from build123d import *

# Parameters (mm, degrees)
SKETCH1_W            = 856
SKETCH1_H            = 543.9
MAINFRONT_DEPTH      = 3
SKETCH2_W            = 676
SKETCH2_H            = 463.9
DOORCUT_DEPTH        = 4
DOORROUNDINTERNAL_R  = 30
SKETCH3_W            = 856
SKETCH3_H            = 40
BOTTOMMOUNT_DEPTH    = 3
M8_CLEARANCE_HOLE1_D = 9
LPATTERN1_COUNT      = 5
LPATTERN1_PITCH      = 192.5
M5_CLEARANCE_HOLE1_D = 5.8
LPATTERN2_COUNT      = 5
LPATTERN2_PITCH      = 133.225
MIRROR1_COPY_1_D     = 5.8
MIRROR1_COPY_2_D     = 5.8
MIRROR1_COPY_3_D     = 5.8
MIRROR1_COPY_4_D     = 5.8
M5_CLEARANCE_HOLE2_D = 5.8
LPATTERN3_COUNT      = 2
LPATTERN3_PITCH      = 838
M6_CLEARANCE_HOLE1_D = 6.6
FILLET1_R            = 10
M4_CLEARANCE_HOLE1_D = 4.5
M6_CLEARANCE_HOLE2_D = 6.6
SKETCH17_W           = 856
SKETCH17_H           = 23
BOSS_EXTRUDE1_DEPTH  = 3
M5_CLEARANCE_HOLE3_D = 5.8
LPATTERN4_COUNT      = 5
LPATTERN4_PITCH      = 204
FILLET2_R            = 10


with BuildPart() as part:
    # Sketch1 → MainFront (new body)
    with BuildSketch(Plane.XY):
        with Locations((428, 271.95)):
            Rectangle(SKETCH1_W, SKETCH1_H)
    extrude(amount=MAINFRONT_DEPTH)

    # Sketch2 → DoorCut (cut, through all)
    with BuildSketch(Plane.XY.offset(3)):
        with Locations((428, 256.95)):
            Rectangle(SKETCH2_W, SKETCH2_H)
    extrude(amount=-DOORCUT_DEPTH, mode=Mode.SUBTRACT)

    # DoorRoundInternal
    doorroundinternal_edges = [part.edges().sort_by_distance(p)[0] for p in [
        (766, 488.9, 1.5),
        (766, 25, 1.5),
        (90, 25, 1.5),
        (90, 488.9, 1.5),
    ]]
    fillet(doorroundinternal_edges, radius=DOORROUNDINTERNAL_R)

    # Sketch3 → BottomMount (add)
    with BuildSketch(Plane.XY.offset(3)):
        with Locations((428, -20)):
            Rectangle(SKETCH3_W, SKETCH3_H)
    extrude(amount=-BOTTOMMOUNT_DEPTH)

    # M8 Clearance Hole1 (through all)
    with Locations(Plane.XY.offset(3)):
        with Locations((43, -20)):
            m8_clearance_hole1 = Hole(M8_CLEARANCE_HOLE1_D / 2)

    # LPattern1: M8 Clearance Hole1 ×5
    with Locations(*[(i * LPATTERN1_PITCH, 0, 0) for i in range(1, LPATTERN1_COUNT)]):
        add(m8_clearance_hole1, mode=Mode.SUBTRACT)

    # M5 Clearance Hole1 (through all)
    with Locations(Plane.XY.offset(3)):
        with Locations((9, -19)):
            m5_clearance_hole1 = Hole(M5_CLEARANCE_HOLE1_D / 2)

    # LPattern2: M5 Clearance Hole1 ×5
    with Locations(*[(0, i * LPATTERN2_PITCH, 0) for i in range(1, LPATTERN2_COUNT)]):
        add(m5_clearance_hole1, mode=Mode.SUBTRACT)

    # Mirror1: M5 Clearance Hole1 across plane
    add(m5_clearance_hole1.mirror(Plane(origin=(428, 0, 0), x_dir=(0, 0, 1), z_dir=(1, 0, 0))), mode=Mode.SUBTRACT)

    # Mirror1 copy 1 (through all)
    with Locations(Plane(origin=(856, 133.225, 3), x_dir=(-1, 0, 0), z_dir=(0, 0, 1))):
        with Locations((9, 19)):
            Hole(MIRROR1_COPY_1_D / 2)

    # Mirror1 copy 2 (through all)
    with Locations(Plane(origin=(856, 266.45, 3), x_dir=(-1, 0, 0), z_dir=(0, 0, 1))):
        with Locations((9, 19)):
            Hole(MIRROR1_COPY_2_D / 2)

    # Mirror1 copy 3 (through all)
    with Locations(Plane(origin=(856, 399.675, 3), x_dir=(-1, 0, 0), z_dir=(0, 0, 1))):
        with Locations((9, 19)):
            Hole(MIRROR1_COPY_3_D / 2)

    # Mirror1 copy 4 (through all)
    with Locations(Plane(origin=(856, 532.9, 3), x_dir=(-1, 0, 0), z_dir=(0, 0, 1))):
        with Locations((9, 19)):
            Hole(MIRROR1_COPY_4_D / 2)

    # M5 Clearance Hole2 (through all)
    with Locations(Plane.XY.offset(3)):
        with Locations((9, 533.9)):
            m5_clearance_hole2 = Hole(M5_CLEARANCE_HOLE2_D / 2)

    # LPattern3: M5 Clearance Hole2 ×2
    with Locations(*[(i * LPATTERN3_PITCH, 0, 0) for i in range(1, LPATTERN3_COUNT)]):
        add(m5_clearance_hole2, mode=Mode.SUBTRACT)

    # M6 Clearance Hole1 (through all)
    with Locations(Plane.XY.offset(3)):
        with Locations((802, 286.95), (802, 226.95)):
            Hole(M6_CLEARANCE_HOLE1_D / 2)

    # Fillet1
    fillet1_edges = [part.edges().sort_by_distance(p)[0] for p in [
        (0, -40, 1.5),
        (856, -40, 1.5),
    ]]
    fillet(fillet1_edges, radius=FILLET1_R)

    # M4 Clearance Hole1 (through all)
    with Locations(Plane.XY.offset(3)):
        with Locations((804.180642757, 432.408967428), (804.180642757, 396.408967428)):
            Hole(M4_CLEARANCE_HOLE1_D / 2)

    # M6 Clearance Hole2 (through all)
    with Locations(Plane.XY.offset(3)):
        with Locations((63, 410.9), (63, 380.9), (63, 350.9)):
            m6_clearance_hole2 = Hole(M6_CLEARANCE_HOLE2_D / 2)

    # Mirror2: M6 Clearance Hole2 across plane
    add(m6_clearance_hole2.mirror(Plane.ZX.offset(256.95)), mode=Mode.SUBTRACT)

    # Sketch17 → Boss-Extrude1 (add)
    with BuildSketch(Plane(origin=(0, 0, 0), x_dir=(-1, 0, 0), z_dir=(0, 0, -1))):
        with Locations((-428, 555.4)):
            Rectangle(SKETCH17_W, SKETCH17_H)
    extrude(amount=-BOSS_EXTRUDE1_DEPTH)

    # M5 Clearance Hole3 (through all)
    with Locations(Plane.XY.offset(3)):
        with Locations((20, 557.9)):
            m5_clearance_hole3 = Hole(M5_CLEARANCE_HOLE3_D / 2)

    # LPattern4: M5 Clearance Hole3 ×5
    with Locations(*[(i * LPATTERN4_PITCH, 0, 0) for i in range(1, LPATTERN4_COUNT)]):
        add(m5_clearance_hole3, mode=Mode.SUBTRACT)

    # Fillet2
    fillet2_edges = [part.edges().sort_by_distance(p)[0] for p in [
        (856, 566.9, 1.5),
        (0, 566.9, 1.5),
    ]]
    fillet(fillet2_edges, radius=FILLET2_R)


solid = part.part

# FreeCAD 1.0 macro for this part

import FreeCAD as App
import Part
import Sketcher


def edges_at(feature, points):
    """Names of the edges that pass closest to the given points."""
    edges = feature.Shape.Edges
    near = lambda p: min(range(len(edges)), key=lambda i: edges[i].distToShape(Part.Vertex(*p))[0])
    return sorted({f"Edge{near(p) + 1}" for p in points})

doc = App.newDocument("Part")
body = doc.addObject("PartDesign::Body", "Body")

sketch1 = body.newObject("Sketcher::SketchObject", "Sketch")
sketch1.AttachmentSupport = (doc.getObject("XY_Plane"), [""])
sketch1.MapMode = "FlatFace"
sketch1.addGeometry([
    Part.LineSegment(App.Vector(0, 544, 0), App.Vector(0, 0, 0)),
    Part.LineSegment(App.Vector(0, 0, 0), App.Vector(856, 0, 0)),
    Part.LineSegment(App.Vector(856, 0, 0), App.Vector(856, 544, 0)),
    Part.LineSegment(App.Vector(856, 544, 0), App.Vector(0, 544, 0)),
], False)
sketch1.addConstraint([
    Sketcher.Constraint("Coincident", 0, 2, 1, 1),
    Sketcher.Constraint("Coincident", 1, 2, 2, 1),
    Sketcher.Constraint("Coincident", 2, 2, 3, 1),
    Sketcher.Constraint("Coincident", 3, 2, 0, 1),
    Sketcher.Constraint("Vertical", 0),
    Sketcher.Constraint("Horizontal", 1),
    Sketcher.Constraint("Vertical", 2),
    Sketcher.Constraint("Horizontal", 3),
    Sketcher.Constraint("Coincident", 0, 2, -1, 1),
    Sketcher.Constraint("DistanceX", 1, 1, 1, 2, 856.0),
    Sketcher.Constraint("DistanceY", 0, 2, 0, 1, 543.9),
])
pad1 = body.newObject("PartDesign::Pad", "Pad")
pad1.Profile = sketch1
pad1.Length = 3

sketch2 = body.newObject("Sketcher::SketchObject", "Sketch001")
sketch2.AttachmentSupport = (doc.getObject("XY_Plane"), [""])
sketch2.MapMode = "FlatFace"
sketch2.AttachmentOffset = App.Placement(App.Vector(0, 0, 3), App.Rotation())
sketch2.addGeometry([
    Part.LineSegment(App.Vector(90, 489, 0), App.Vector(90, 25, 0)),
    Part.LineSegment(App.Vector(90, 25, 0), App.Vector(766, 25, 0)),
    Part.LineSegment(App.Vector(766, 25, 0), App.Vector(766, 489, 0)),
    Part.LineSegment(App.Vector(766, 489, 0), App.Vector(90, 489, 0)),
], False)
sketch2.addConstraint([
    Sketcher.Constraint("Coincident", 0, 2, 1, 1),
    Sketcher.Constraint("Coincident", 1, 2, 2, 1),
    Sketcher.Constraint("Coincident", 2, 2, 3, 1),
    Sketcher.Constraint("Coincident", 3, 2, 0, 1),
    Sketcher.Constraint("Vertical", 0),
    Sketcher.Constraint("Horizontal", 1),
    Sketcher.Constraint("Vertical", 2),
    Sketcher.Constraint("Horizontal", 3),
    Sketcher.Constraint("DistanceX", 1, 1, 1, 2, 676.0),
    Sketcher.Constraint("DistanceY", 0, 2, 0, 1, 463.9),
    Sketcher.Constraint("DistanceX", -1, 1, 0, 2, 90.0),
    Sketcher.Constraint("DistanceY", -1, 1, 0, 2, 25.0),
])
pocket1 = body.newObject("PartDesign::Pocket", "Pocket")
pocket1.Profile = sketch2
pocket1.Type = "ThroughAll"
doc.recompute()

fillet = body.newObject("PartDesign::Fillet", "Fillet")
fillet.Base = (pocket1, edges_at(pocket1, [
    (766, 488.9, 1.5),
    (766, 25, 1.5),
    (90, 25, 1.5),
    (90, 488.9, 1.5),
]))
fillet.Radius = 30

sketch3 = body.newObject("Sketcher::SketchObject", "Sketch002")
sketch3.AttachmentSupport = (doc.getObject("XY_Plane"), [""])
sketch3.MapMode = "FlatFace"
sketch3.AttachmentOffset = App.Placement(App.Vector(0, 0, 3), App.Rotation())
sketch3.addGeometry([
    Part.LineSegment(App.Vector(0, 0, 0), App.Vector(0, -40, 0)),
    Part.LineSegment(App.Vector(0, -40, 0), App.Vector(856, -40, 0)),
    Part.LineSegment(App.Vector(856, -40, 0), App.Vector(856, 0, 0)),
    Part.LineSegment(App.Vector(856, 0, 0), App.Vector(0, 0, 0)),
], False)
sketch3.addConstraint([
    Sketcher.Constraint("Coincident", 0, 2, 1, 1),
    Sketcher.Constraint("Coincident", 1, 2, 2, 1),
    Sketcher.Constraint("Coincident", 2, 2, 3, 1),
    Sketcher.Constraint("Coincident", 3, 2, 0, 1),
    Sketcher.Constraint("Vertical", 0),
    Sketcher.Constraint("Horizontal", 1),
    Sketcher.Constraint("Vertical", 2),
    Sketcher.Constraint("Horizontal", 3),
    Sketcher.Constraint("Coincident", 3, 2, -1, 1),
    Sketcher.Constraint("DistanceX", 1, 1, 1, 2, 856.0),
    Sketcher.Constraint("DistanceY", 0, 2, 0, 1, 40.0),
])
pad2 = body.newObject("PartDesign::Pad", "Pad001")
pad2.Profile = sketch3
pad2.Length = 3
pad2.Reversed = True

sketch4 = body.newObject("Sketcher::SketchObject", "Sketch003")
sketch4.AttachmentSupport = (doc.getObject("XY_Plane"), [""])
sketch4.MapMode = "FlatFace"
sketch4.AttachmentOffset = App.Placement(App.Vector(0, 0, 3), App.Rotation())
sketch4.addGeometry(Part.Circle(App.Vector(43, -20, 0), App.Vector(0, 0, 1), 4.5), False)
sketch4.addConstraint([
    Sketcher.Constraint("Diameter", 0, 9.0),
    Sketcher.Constraint("DistanceX", -1, 1, 0, 3, 43.0),
    Sketcher.Constraint("DistanceY", 0, 3, -1, 1, 20.0),
])
doc.recompute()
hole = body.newObject("PartDesign::Hole", "Hole")
hole.Profile = sketch4
hole.ThreadType = "None"
hole.Diameter = 9
hole.DepthType = "ThroughAll"
doc.recompute()

linearpattern = body.newObject("PartDesign::LinearPattern", "LinearPattern")
linearpattern.Originals = [hole]
linearpattern.Direction = (doc.getObject("X_Axis"), [""])
linearpattern.Mode = "offset"
linearpattern.Offset = 192.5
linearpattern.Occurrences = 5
body.Tip = linearpattern

sketch5 = body.newObject("Sketcher::SketchObject", "Sketch004")
sketch5.AttachmentSupport = (doc.getObject("XY_Plane"), [""])
sketch5.MapMode = "FlatFace"
sketch5.AttachmentOffset = App.Placement(App.Vector(0, 0, 3), App.Rotation())
sketch5.addGeometry(Part.Circle(App.Vector(9, -19, 0), App.Vector(0, 0, 1), 2.9), False)
sketch5.addConstraint([
    Sketcher.Constraint("Diameter", 0, 5.8),
    Sketcher.Constraint("DistanceX", -1, 1, 0, 3, 9.0),
    Sketcher.Constraint("DistanceY", 0, 3, -1, 1, 19.0),
])
doc.recompute()
hole2 = body.newObject("PartDesign::Hole", "Hole001")
hole2.Profile = sketch5
hole2.ThreadType = "None"
hole2.Diameter = 5.8
hole2.DepthType = "ThroughAll"
doc.recompute()

linearpattern2 = body.newObject("PartDesign::LinearPattern", "LinearPattern001")
linearpattern2.Originals = [hole2]
linearpattern2.Direction = (doc.getObject("Y_Axis"), [""])
linearpattern2.Mode = "offset"
linearpattern2.Offset = 133.225
linearpattern2.Occurrences = 5
body.Tip = linearpattern2
doc.recompute()

datumplane = body.newObject("PartDesign::Plane", "DatumPlane")
datumplane.AttachmentSupport = (doc.getObject("YZ_Plane"), [""])
datumplane.MapMode = "FlatFace"
datumplane.AttachmentOffset = App.Placement(App.Vector(0, 0, 428), App.Rotation())
mirrored = body.newObject("PartDesign::Mirrored", "Mirrored")
mirrored.Originals = [hole2]
mirrored.MirrorPlane = (datumplane, [""])
body.Tip = mirrored

sketch6 = body.newObject("Sketcher::SketchObject", "Sketch005")
sketch6.AttachmentSupport = (doc.getObject("XY_Plane"), [""])
sketch6.MapMode = "FlatFace"
sketch6.AttachmentOffset = App.Placement(App.Vector(0, 0, 3), App.Rotation())
sketch6.addGeometry(Part.Circle(App.Vector(847, 114.2, 0), App.Vector(0, 0, 1), 2.9), False)
sketch6.addConstraint([
    Sketcher.Constraint("Diameter", 0, 5.8),
    Sketcher.Constraint("DistanceX", -1, 1, 0, 3, 847.0),
    Sketcher.Constraint("DistanceY", -1, 1, 0, 3, 114.225),
])
doc.recompute()
hole3 = body.newObject("PartDesign::Hole", "Hole002")
hole3.Profile = sketch6
hole3.ThreadType = "None"
hole3.Diameter = 5.8
hole3.DepthType = "ThroughAll"

sketch7 = body.newObject("Sketcher::SketchObject", "Sketch006")
sketch7.AttachmentSupport = (doc.getObject("XY_Plane"), [""])
sketch7.MapMode = "FlatFace"
sketch7.AttachmentOffset = App.Placement(App.Vector(0, 0, 3), App.Rotation())
sketch7.addGeometry(Part.Circle(App.Vector(847, 247.4, 0), App.Vector(0, 0, 1), 2.9), False)
sketch7.addConstraint([
    Sketcher.Constraint("Diameter", 0, 5.8),
    Sketcher.Constraint("DistanceX", -1, 1, 0, 3, 847.0),
    Sketcher.Constraint("DistanceY", -1, 1, 0, 3, 247.45),
])
doc.recompute()
hole4 = body.newObject("PartDesign::Hole", "Hole003")
hole4.Profile = sketch7
hole4.ThreadType = "None"
hole4.Diameter = 5.8
hole4.DepthType = "ThroughAll"

sketch8 = body.newObject("Sketcher::SketchObject", "Sketch007")
sketch8.AttachmentSupport = (doc.getObject("XY_Plane"), [""])
sketch8.MapMode = "FlatFace"
sketch8.AttachmentOffset = App.Placement(App.Vector(0, 0, 3), App.Rotation())
sketch8.addGeometry(Part.Circle(App.Vector(847, 380.7, 0), App.Vector(0, 0, 1), 2.9), False)
sketch8.addConstraint([
    Sketcher.Constraint("Diameter", 0, 5.8),
    Sketcher.Constraint("DistanceX", -1, 1, 0, 3, 847.0),
    Sketcher.Constraint("DistanceY", -1, 1, 0, 3, 380.675),
])
doc.recompute()
hole5 = body.newObject("PartDesign::Hole", "Hole004")
hole5.Profile = sketch8
hole5.ThreadType = "None"
hole5.Diameter = 5.8
hole5.DepthType = "ThroughAll"

sketch9 = body.newObject("Sketcher::SketchObject", "Sketch008")
sketch9.AttachmentSupport = (doc.getObject("XY_Plane"), [""])
sketch9.MapMode = "FlatFace"
sketch9.AttachmentOffset = App.Placement(App.Vector(0, 0, 3), App.Rotation())
sketch9.addGeometry(Part.Circle(App.Vector(847, 513.9, 0), App.Vector(0, 0, 1), 2.9), False)
sketch9.addConstraint([
    Sketcher.Constraint("Diameter", 0, 5.8),
    Sketcher.Constraint("DistanceX", -1, 1, 0, 3, 847.0),
    Sketcher.Constraint("DistanceY", -1, 1, 0, 3, 513.9),
])
doc.recompute()
hole6 = body.newObject("PartDesign::Hole", "Hole005")
hole6.Profile = sketch9
hole6.ThreadType = "None"
hole6.Diameter = 5.8
hole6.DepthType = "ThroughAll"

sketch10 = body.newObject("Sketcher::SketchObject", "Sketch009")
sketch10.AttachmentSupport = (doc.getObject("XY_Plane"), [""])
sketch10.MapMode = "FlatFace"
sketch10.AttachmentOffset = App.Placement(App.Vector(0, 0, 3), App.Rotation())
sketch10.addGeometry(Part.Circle(App.Vector(9, 533.9, 0), App.Vector(0, 0, 1), 2.9), False)
sketch10.addConstraint([
    Sketcher.Constraint("Diameter", 0, 5.8),
    Sketcher.Constraint("DistanceX", -1, 1, 0, 3, 9.0),
    Sketcher.Constraint("DistanceY", -1, 1, 0, 3, 533.9),
])
doc.recompute()
hole7 = body.newObject("PartDesign::Hole", "Hole006")
hole7.Profile = sketch10
hole7.ThreadType = "None"
hole7.Diameter = 5.8
hole7.DepthType = "ThroughAll"
doc.recompute()

linearpattern3 = body.newObject("PartDesign::LinearPattern", "LinearPattern002")
linearpattern3.Originals = [hole7]
linearpattern3.Direction = (doc.getObject("X_Axis"), [""])
linearpattern3.Mode = "offset"
linearpattern3.Offset = 838
linearpattern3.Occurrences = 2
body.Tip = linearpattern3

sketch11 = body.newObject("Sketcher::SketchObject", "Sketch010")
sketch11.AttachmentSupport = (doc.getObject("XY_Plane"), [""])
sketch11.MapMode = "FlatFace"
sketch11.AttachmentOffset = App.Placement(App.Vector(0, 0, 3), App.Rotation())
sketch11.addGeometry([
    Part.Circle(App.Vector(802, 286.9, 0), App.Vector(0, 0, 1), 3.3),
    Part.Circle(App.Vector(802, 226.9, 0), App.Vector(0, 0, 1), 3.3),
], False)
sketch11.addConstraint([
    Sketcher.Constraint("Equal", 0, 1),
    Sketcher.Constraint("Vertical", 0, 3, 1, 3),
    Sketcher.Constraint("Diameter", 0, 6.6),
    Sketcher.Constraint("DistanceX", -1, 1, 0, 3, 802.0),
    Sketcher.Constraint("DistanceY", 1, 3, 0, 3, 60.0),
    Sketcher.Constraint("DistanceY", -1, 1, 0, 3, 286.95),
])
doc.recompute()
hole8 = body.newObject("PartDesign::Hole", "Hole007")
hole8.Profile = sketch11
hole8.ThreadType = "None"
hole8.Diameter = 6.6
hole8.DepthType = "ThroughAll"
doc.recompute()

fillet2 = body.newObject("PartDesign::Fillet", "Fillet001")
fillet2.Base = (hole8, edges_at(hole8, [(0, -40, 1.5), (856, -40, 1.5)]))
fillet2.Radius = 10

sketch12 = body.newObject("Sketcher::SketchObject", "Sketch011")
sketch12.AttachmentSupport = (doc.getObject("XY_Plane"), [""])
sketch12.MapMode = "FlatFace"
sketch12.AttachmentOffset = App.Placement(App.Vector(0, 0, 3), App.Rotation())
sketch12.addGeometry([
    Part.Circle(App.Vector(804.2, 432.4, 0), App.Vector(0, 0, 1), 2.2),
    Part.Circle(App.Vector(804.2, 396.4, 0), App.Vector(0, 0, 1), 2.2),
], False)
sketch12.addConstraint([
    Sketcher.Constraint("Equal", 0, 1),
    Sketcher.Constraint("Vertical", 0, 3, 1, 3),
    Sketcher.Constraint("Diameter", 0, 4.5),
    Sketcher.Constraint("DistanceY", 1, 3, 0, 3, 36.0),
    Sketcher.Constraint("DistanceX", -1, 1, 0, 3, 804.180643),
    Sketcher.Constraint("DistanceY", -1, 1, 0, 3, 432.408967),
])
doc.recompute()
hole9 = body.newObject("PartDesign::Hole", "Hole008")
hole9.Profile = sketch12
hole9.ThreadType = "None"
hole9.Diameter = 4.5
hole9.DepthType = "ThroughAll"

sketch13 = body.newObject("Sketcher::SketchObject", "Sketch012")
sketch13.AttachmentSupport = (doc.getObject("XY_Plane"), [""])
sketch13.MapMode = "FlatFace"
sketch13.AttachmentOffset = App.Placement(App.Vector(0, 0, 3), App.Rotation())
sketch13.addGeometry([
    Part.Circle(App.Vector(63, 410.9, 0), App.Vector(0, 0, 1), 3.3),
    Part.Circle(App.Vector(63, 380.9, 0), App.Vector(0, 0, 1), 3.3),
    Part.Circle(App.Vector(63, 350.9, 0), App.Vector(0, 0, 1), 3.3),
], False)
sketch13.addConstraint([
    Sketcher.Constraint("Equal", 0, 1),
    Sketcher.Constraint("Equal", 1, 2),
    Sketcher.Constraint("Vertical", 0, 3, 1, 3),
    Sketcher.Constraint("Vertical", 1, 3, 2, 3),
    Sketcher.Constraint("Diameter", 0, 6.6),
    Sketcher.Constraint("DistanceX", -1, 1, 0, 3, 63.0),
    Sketcher.Constraint("DistanceY", 1, 3, 0, 3, 30.0),
    Sketcher.Constraint("DistanceY", 2, 3, 1, 3, 30.0),
    Sketcher.Constraint("DistanceY", -1, 1, 0, 3, 410.9),
])
doc.recompute()
hole10 = body.newObject("PartDesign::Hole", "Hole009")
hole10.Profile = sketch13
hole10.ThreadType = "None"
hole10.Diameter = 6.6
hole10.DepthType = "ThroughAll"
doc.recompute()

datumplane2 = body.newObject("PartDesign::Plane", "DatumPlane001")
datumplane2.AttachmentSupport = (doc.getObject("XZ_Plane"), [""])
datumplane2.MapMode = "FlatFace"
datumplane2.AttachmentOffset = App.Placement(App.Vector(0, 0, -256.95), App.Rotation())
mirrored2 = body.newObject("PartDesign::Mirrored", "Mirrored001")
mirrored2.Originals = [hole10]
mirrored2.MirrorPlane = (datumplane2, [""])
body.Tip = mirrored2

sketch14 = body.newObject("Sketcher::SketchObject", "Sketch013")
sketch14.AttachmentSupport = (doc.getObject("XY_Plane"), [""])
sketch14.MapMode = "FlatFace"
sketch14.addGeometry([
    Part.LineSegment(App.Vector(856, 567, 0), App.Vector(856, 544, 0)),
    Part.LineSegment(App.Vector(856, 544, 0), App.Vector(0, 544, 0)),
    Part.LineSegment(App.Vector(0, 544, 0), App.Vector(0, 567, 0)),
    Part.LineSegment(App.Vector(0, 567, 0), App.Vector(856, 567, 0)),
], False)
sketch14.addConstraint([
    Sketcher.Constraint("Coincident", 0, 2, 1, 1),
    Sketcher.Constraint("Coincident", 1, 2, 2, 1),
    Sketcher.Constraint("Coincident", 2, 2, 3, 1),
    Sketcher.Constraint("Coincident", 3, 2, 0, 1),
    Sketcher.Constraint("Vertical", 0),
    Sketcher.Constraint("Horizontal", 1),
    Sketcher.Constraint("Vertical", 2),
    Sketcher.Constraint("Horizontal", 3),
    Sketcher.Constraint("PointOnObject", 1, 2, -2),
    Sketcher.Constraint("DistanceX", 1, 2, 1, 1, 856.0),
    Sketcher.Constraint("DistanceY", 0, 2, 0, 1, 23.0),
    Sketcher.Constraint("DistanceY", -1, 1, 0, 2, 543.9),
])
pad3 = body.newObject("PartDesign::Pad", "Pad002")
pad3.Profile = sketch14
pad3.Length = 3

sketch15 = body.newObject("Sketcher::SketchObject", "Sketch014")
sketch15.AttachmentSupport = (doc.getObject("XY_Plane"), [""])
sketch15.MapMode = "FlatFace"
sketch15.AttachmentOffset = App.Placement(App.Vector(0, 0, 3), App.Rotation())
sketch15.addGeometry(Part.Circle(App.Vector(20, 557.9, 0), App.Vector(0, 0, 1), 2.9), False)
sketch15.addConstraint([
    Sketcher.Constraint("Diameter", 0, 5.8),
    Sketcher.Constraint("DistanceX", -1, 1, 0, 3, 20.0),
    Sketcher.Constraint("DistanceY", -1, 1, 0, 3, 557.9),
])
doc.recompute()
hole11 = body.newObject("PartDesign::Hole", "Hole010")
hole11.Profile = sketch15
hole11.ThreadType = "None"
hole11.Diameter = 5.8
hole11.DepthType = "ThroughAll"
doc.recompute()

linearpattern4 = body.newObject("PartDesign::LinearPattern", "LinearPattern003")
linearpattern4.Originals = [hole11]
linearpattern4.Direction = (doc.getObject("X_Axis"), [""])
linearpattern4.Mode = "offset"
linearpattern4.Offset = 204
linearpattern4.Occurrences = 5
body.Tip = linearpattern4
doc.recompute()

fillet3 = body.newObject("PartDesign::Fillet", "Fillet002")
fillet3.Base = (linearpattern4, edges_at(linearpattern4, [(856, 566.9, 1.5), (0, 566.9, 1.5)]))
fillet3.Radius = 10

doc.recompute()
